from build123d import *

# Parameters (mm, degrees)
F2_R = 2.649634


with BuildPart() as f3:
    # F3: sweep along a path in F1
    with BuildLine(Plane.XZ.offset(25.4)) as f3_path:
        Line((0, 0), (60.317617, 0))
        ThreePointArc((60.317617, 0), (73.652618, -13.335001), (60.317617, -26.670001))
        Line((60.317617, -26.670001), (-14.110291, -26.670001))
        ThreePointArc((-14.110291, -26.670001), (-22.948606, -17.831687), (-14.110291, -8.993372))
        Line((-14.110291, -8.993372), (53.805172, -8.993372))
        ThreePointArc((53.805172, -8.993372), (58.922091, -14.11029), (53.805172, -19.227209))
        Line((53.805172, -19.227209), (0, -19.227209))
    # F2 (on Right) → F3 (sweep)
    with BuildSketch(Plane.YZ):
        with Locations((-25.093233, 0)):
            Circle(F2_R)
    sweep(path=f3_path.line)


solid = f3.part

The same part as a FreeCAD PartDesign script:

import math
import FreeCAD as App
import Part
import Sketcher

V = App.Vector
Q = App.Units.Quantity

doc = App.newDocument("Part")
body = doc.addObject("PartDesign::Body", "Body")

sketch1 = doc.addObject("Sketcher::SketchObject", "Sketch")
body.addObject(sketch1)
sketch1.AttachmentSupport = (doc.YZ_Plane, [""])
sketch1.MapMode = "FlatFace"
sketch1.addGeometry(Part.Circle(V(-25.1, 0, 0), V(0, 0, 1), 2.6), False)
sketch1.addConstraint([
    Sketcher.Constraint("PointOnObject", 0, 3, -1),
    Sketcher.Constraint("Diameter", 0, 5.299268),
    Sketcher.Constraint("DistanceX", 0, 3, -1, 1, 25.093233),
])

sketch2 = doc.addObject("Sketcher::SketchObject", "Sketch001")
body.addObject(sketch2)
sketch2.AttachmentSupport = (doc.XZ_Plane, [""])
sketch2.MapMode = "FlatFace"
sketch2.AttachmentOffset = App.Placement(V(0, 0, 1 * 25.4), App.Rotation())
sketch2.addGeometry([
    Part.LineSegment(V(0, 0, 0), V(60, 0, 0)),
    Part.ArcOfCircle(Part.Circle(V(60, -13, 0), V(0, 0, 1), 13), math.radians(-90), math.radians(90)),
    Part.LineSegment(V(60, -27, 0), V(-14, -27, 0)),
    Part.ArcOfCircle(Part.Circle(V(-14, -18, 0), V(0, 0, 1), 9), math.radians(90), math.radians(270)),
    Part.LineSegment(V(-14, -9, 0), V(54, -9, 0)),
    Part.ArcOfCircle(Part.Circle(V(54, -14, 0), V(0, 0, 1), 5), math.radians(-90), math.radians(90)),
    Part.LineSegment(V(54, -19, 0), V(0, -19, 0)),
], False)
sketch2.addConstraint([
    Sketcher.Constraint("Tangent", 0, 2, 1, 2),
    Sketcher.Constraint("Tangent", 1, 1, 2, 1),
    Sketcher.Constraint("Tangent", 2, 2, 3, 2),
    Sketcher.Constraint("Tangent", 3, 1, 4, 1),
    Sketcher.Constraint("Tangent", 4, 2, 5, 2),
    Sketcher.Constraint("Tangent", 5, 1, 6, 1),
    Sketcher.Constraint("Horizontal", 0),
    Sketcher.Constraint("Horizontal", 2),
    Sketcher.Constraint("Horizontal", 4),
    Sketcher.Constraint("Horizontal", 6),
    Sketcher.Constraint("Coincident", 0, 1, -1, 1),
    Sketcher.Constraint("PointOnObject", 6, 2, -2),
    Sketcher.Constraint("Radius", 1, Q("0.525 in")),
    Sketcher.Constraint("Radius", 5, 5.116918),
    Sketcher.Constraint("Radius", 3, 8.838314),
    Sketcher.Constraint("DistanceX", 2, 2, 2, 1, 74.427908),
    Sketcher.Constraint("DistanceX", 0, 1, 0, 2, 60.317617),
    Sketcher.Constraint("DistanceX", 4, 1, 4, 2, 67.915463),
])
doc.recompute()

additivepipe = doc.addObject("PartDesign::AdditivePipe", "AdditivePipe")
body.addObject(additivepipe)
additivepipe.Profile = sketch1
additivepipe.Spine = (sketch2, ["Edge1", "Edge2", "Edge3", "Edge4", "Edge5", "Edge6", "Edge7"])

doc.recompute()
